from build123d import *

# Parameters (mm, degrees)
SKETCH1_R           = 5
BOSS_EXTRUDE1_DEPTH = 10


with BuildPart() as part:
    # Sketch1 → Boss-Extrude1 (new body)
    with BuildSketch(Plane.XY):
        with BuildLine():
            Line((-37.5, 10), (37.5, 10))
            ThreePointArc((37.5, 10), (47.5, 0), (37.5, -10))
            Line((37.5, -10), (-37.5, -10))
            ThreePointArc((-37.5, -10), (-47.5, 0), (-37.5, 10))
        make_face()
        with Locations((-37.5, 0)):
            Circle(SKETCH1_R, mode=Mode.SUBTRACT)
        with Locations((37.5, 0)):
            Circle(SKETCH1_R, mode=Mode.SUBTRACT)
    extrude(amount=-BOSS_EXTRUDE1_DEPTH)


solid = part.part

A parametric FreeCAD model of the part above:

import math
import FreeCAD as App
import Part
import Sketcher

doc = App.newDocument("Part")
body = doc.addObject("PartDesign::Body", "Body")

sketch1 = body.newObject("Sketcher::SketchObject", "Sketch")
sketch1.AttachmentSupport = (doc.getObject("XY_Plane"), [""])
sketch1.MapMode = "FlatFace"
sketch1.addGeometry([
    Part.LineSegment(App.Vector(38, 10, 0), App.Vector(-38, 10, 0)),
    Part.ArcOfCircle(Part.Circle(App.Vector(-38, 0, 0), App.Vector(0, 0, 1), 10), math.radians(90), math.radians(270)),
    Part.LineSegment(App.Vector(-38, -10, 0), App.Vector(38, -10, 0)),
    Part.ArcOfCircle(Part.Circle(App.Vector(38, 0, 0), App.Vector(0, 0, 1), 10), math.radians(-90), math.radians(90)),
    Part.Circle(App.Vector(38, 0, 0), App.Vector(0, 0, 1), 5),
    Part.Circle(App.Vector(-38, 0, 0), App.Vector(0, 0, 1), 5),
], False)
sketch1.addConstraint([
    Sketcher.Constraint("Tangent", 0, 2, 1, 1),
    Sketcher.Constraint("Tangent", 1, 2, 2, 1),
    Sketcher.Constraint("Tangent", 2, 2, 3, 1),
    Sketcher.Constraint("Tangent", 3, 2, 0, 1),
    Sketcher.Constraint("Horizontal", 0),
    Sketcher.Constraint("Horizontal", 2),
    Sketcher.Constraint("Coincident", 4, 3, 3, 3),
    Sketcher.Constraint("Coincident", 5, 3, 1, 3),
    Sketcher.Constraint("Equal", 4, 5),
    Sketcher.Constraint("Symmetric", 1, 3, 3, 3, -1, 1),
    Sketcher.Constraint("Diameter", 4, 10.0),
    Sketcher.Constraint("Radius", 1, 10.0),
    Sketcher.Constraint("DistanceX", 0, 2, 0, 1, 75.0),
])
pad1 = body.newObject("PartDesign::Pad", "Pad")
pad1.Profile = sketch1
pad1.Length = 10
pad1.Reversed = True

doc.recompute()
